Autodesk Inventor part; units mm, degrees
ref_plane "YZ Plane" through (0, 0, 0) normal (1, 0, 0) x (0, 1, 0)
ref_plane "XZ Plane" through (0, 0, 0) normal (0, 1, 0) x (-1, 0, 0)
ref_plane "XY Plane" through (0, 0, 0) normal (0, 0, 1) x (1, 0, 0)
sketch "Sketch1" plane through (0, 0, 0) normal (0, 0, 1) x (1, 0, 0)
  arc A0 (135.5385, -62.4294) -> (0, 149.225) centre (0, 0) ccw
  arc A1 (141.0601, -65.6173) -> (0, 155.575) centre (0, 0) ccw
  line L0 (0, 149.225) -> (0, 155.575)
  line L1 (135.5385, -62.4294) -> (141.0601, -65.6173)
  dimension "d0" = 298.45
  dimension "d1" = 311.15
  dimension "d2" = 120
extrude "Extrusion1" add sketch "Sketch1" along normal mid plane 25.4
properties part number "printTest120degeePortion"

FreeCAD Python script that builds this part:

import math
import FreeCAD as App
import Part
import Sketcher
from FreeCAD import Vector
Q = App.Units.Quantity

doc = App.newDocument("Part")
params = doc.addObject("Spreadsheet::Sheet", "Params")
for row, (alias, value) in enumerate([
    ("sketch1_radius", "5.875 in"),
    ("sketch1_radius2", "6.125 in"),
    ("pad1_length", "1 in"),
], start=1):
    params.set(f"A{row}", alias)
    params.set(f"B{row}", "=" + value)
    params.setAlias(f"B{row}", alias)

body = doc.addObject("PartDesign::Body", "Body")

sketch1 = body.newObject("Sketcher::SketchObject", "Sketch")
sketch1.AttachmentSupport = (doc.getObject("XY_Plane"), [""])
sketch1.MapMode = "FlatFace"
sketch1.addGeometry(Part.ArcOfCircle(Part.Circle(Vector(0, 0, 0), Vector(0, 0, 1), 149.225048), math.radians(-24.730925), math.radians(90)), False)
sketch1.addGeometry(Part.LineSegment(Vector(135.5385, -62.4294, 0), Vector(141.0601, -65.6173, 0)), False)
sketch1.addGeometry(Part.ArcOfCircle(Part.Circle(Vector(0, 0, 0), Vector(0, 0, 1), 155.575004), math.radians(-24.94656), math.radians(90)), False)
sketch1.addGeometry(Part.LineSegment(Vector(0, 155.575, 0), Vector(0, 149.225, 0)), False)
sketch1.addConstraint(Sketcher.Constraint("Coincident", 0, 1, 1, 1))
sketch1.addConstraint(Sketcher.Constraint("Coincident", 1, 2, 2, 1))
sketch1.addConstraint(Sketcher.Constraint("Coincident", 2, 2, 3, 1))
sketch1.addConstraint(Sketcher.Constraint("Coincident", 3, 2, 0, 2))
sketch1.addConstraint(Sketcher.Constraint("Vertical", 3))
sketch1.addConstraint(Sketcher.Constraint("Coincident", 0, 3, -1, 1))
sketch1.addConstraint(Sketcher.Constraint("Coincident", 2, 3, -1, 1))
sketch1.addConstraint(Sketcher.Constraint("PointOnObject", 2, 2, -2))
sketch1.addConstraint(Sketcher.Constraint("Radius", 0, Q("5.875 in")))
sketch1.addConstraint(Sketcher.Constraint("Radius", 2, Q("6.125 in")))
sketch1.addConstraint(Sketcher.Constraint("Angle", 1, Q("-30 deg")))
sketch1.addConstraint(Sketcher.Constraint("DistanceX", -1, 1, 0, 1, 135.5385))
sketch1.setExpression("Constraints[8]", "Params.sketch1_radius")
sketch1.setExpression("Constraints[9]", "Params.sketch1_radius2")
pad1 = body.newObject("PartDesign::Pad", "Pad")
pad1.Profile = sketch1
pad1.setExpression("Length", "Params.pad1_length")
pad1.Midplane = True

doc.recompute()
